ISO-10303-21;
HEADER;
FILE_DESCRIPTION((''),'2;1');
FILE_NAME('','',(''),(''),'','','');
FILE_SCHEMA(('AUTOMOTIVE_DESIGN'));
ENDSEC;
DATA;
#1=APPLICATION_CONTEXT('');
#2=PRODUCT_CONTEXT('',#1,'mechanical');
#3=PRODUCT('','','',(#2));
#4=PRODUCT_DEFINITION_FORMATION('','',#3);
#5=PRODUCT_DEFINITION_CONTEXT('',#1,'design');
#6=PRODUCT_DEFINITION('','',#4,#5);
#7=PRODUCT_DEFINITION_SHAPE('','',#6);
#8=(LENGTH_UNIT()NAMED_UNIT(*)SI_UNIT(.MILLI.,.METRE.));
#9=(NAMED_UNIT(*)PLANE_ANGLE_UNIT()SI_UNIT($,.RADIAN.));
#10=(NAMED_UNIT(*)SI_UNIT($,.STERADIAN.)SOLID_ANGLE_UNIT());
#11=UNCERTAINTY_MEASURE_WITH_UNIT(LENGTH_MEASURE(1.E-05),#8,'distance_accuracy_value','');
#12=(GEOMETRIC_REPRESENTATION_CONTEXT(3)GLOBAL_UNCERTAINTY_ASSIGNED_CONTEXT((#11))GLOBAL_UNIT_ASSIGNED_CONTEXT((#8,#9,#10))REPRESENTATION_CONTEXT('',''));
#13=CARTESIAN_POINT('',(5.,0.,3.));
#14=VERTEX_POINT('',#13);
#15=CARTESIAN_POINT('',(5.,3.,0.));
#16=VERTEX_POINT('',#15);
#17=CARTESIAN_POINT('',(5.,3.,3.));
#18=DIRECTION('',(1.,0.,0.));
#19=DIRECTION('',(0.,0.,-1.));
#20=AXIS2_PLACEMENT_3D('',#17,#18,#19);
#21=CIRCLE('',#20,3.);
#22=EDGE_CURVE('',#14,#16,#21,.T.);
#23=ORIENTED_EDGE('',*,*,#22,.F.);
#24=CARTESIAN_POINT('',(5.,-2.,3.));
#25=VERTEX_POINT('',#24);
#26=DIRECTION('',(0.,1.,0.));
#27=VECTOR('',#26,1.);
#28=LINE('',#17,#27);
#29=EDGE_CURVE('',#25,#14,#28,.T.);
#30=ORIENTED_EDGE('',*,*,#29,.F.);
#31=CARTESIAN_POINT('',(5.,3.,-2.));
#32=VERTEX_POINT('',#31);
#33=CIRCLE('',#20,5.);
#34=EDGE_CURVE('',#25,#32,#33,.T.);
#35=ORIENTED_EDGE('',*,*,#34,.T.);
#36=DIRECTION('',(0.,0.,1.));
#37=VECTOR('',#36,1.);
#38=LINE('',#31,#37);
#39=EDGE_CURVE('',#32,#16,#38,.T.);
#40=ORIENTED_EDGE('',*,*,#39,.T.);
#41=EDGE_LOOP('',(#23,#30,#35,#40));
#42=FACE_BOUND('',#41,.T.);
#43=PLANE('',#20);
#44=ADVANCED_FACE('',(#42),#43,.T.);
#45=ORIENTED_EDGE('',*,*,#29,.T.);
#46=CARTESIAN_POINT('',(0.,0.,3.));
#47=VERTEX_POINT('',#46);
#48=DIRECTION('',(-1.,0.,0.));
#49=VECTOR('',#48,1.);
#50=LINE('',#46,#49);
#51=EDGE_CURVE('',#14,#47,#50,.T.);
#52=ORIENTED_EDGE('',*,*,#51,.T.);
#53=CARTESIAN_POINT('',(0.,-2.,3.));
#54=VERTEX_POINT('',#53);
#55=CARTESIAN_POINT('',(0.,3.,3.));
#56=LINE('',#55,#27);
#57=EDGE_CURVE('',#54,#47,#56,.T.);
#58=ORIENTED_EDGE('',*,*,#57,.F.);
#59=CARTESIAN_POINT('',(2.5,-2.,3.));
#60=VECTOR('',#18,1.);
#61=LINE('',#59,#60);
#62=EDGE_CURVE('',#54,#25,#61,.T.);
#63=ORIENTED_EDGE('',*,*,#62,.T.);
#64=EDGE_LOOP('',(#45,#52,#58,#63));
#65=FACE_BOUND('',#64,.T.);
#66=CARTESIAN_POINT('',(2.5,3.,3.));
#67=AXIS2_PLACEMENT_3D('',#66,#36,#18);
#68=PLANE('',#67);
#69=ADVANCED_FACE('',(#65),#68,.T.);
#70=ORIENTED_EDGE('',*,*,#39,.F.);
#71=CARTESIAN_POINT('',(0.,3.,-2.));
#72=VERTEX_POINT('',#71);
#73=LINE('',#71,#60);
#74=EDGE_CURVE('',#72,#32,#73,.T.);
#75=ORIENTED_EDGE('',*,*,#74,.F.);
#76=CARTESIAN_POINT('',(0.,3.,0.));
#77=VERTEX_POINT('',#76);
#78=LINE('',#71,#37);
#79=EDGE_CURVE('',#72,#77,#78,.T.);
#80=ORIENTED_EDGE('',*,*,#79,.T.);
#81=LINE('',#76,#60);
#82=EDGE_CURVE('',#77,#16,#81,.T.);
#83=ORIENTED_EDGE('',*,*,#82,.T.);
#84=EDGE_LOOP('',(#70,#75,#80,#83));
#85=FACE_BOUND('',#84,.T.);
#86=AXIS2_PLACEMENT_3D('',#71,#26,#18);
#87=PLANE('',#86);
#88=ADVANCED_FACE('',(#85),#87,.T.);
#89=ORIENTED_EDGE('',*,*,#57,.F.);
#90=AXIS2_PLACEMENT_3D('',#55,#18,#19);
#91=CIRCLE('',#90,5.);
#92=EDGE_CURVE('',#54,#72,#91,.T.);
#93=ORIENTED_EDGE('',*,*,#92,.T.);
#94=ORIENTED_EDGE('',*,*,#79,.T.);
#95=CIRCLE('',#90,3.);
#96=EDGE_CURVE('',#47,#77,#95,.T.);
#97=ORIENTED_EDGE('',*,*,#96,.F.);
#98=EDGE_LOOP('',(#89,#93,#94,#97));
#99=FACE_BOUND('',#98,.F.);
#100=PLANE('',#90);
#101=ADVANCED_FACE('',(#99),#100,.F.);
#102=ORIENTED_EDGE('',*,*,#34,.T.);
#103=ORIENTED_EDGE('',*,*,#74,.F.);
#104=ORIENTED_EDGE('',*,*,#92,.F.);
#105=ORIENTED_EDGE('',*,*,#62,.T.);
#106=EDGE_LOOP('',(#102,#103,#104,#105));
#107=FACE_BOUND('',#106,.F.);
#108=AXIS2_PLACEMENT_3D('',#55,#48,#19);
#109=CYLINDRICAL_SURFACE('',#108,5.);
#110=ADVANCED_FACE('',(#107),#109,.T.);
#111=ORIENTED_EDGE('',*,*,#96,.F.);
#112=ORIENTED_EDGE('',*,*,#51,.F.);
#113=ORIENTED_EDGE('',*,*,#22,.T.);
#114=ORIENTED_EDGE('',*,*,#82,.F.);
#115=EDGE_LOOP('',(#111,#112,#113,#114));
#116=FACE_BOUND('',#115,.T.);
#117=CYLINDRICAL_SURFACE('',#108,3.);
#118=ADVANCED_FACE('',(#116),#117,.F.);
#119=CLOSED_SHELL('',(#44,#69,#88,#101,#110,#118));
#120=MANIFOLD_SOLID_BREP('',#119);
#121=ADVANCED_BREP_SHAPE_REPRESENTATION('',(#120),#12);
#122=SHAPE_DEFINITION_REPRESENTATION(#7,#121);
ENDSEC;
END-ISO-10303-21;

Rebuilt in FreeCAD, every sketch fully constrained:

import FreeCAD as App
import Part
import Sketcher

V = App.Vector

doc = App.newDocument("Part")
body = doc.addObject("PartDesign::Body", "Body")

sketch1 = doc.addObject("Sketcher::SketchObject", "Sketch")
body.addObject(sketch1)
sketch1.AttachmentSupport = (doc.XY_Plane, [""])
sketch1.MapMode = "FlatFace"
sketch1.AttachmentOffset = App.Placement(V(0, 0, 3), App.Rotation())
sketch1.addGeometry([
    Part.LineSegment(V(0, 8, 0), V(0, -2, 0)),
    Part.LineSegment(V(0, -2, 0), V(5, -2, 0)),
    Part.LineSegment(V(5, -2, 0), V(5, 8, 0)),
    Part.LineSegment(V(5, 8, 0), V(0, 8, 0)),
], False)
sketch1.addConstraint([
    Sketcher.Constraint("Coincident", 0, 2, 1, 1),
    Sketcher.Constraint("Coincident", 1, 2, 2, 1),
    Sketcher.Constraint("Coincident", 2, 2, 3, 1),
    Sketcher.Constraint("Coincident", 3, 2, 0, 1),
    Sketcher.Constraint("Vertical", 0),
    Sketcher.Constraint("Horizontal", 1),
    Sketcher.Constraint("Vertical", 2),
    Sketcher.Constraint("Horizontal", 3),
    Sketcher.Constraint("PointOnObject", 0, 2, -2),
    Sketcher.Constraint("DistanceX", 1, 1, 1, 2, 5.0),
    Sketcher.Constraint("DistanceY", 0, 2, 0, 1, 10.0),
    Sketcher.Constraint("DistanceY", 0, 2, -1, 1, 2.0),
])
pad1 = doc.addObject("PartDesign::Pad", "Pad")
body.addObject(pad1)
pad1.Profile = sketch1
pad1.Length = 5
body2 = doc.addObject("PartDesign::Body", "Body001")

sketch2 = doc.addObject("Sketcher::SketchObject", "Sketch001")
body2.addObject(sketch2)
sketch2.AttachmentSupport = (doc.getObject("XY_Plane001"), [""])
sketch2.MapMode = "FlatFace"
sketch2.AttachmentOffset = App.Placement(V(0, 0, -2), App.Rotation())
sketch2.addGeometry([
    Part.LineSegment(V(0, 8, 0), V(0, 3, 0)),
    Part.LineSegment(V(0, 3, 0), V(5, 3, 0)),
    Part.LineSegment(V(5, 3, 0), V(5, 8, 0)),
    Part.LineSegment(V(5, 8, 0), V(0, 8, 0)),
], False)
sketch2.addConstraint([
    Sketcher.Constraint("Coincident", 0, 2, 1, 1),
    Sketcher.Constraint("Coincident", 1, 2, 2, 1),
    Sketcher.Constraint("Coincident", 2, 2, 3, 1),
    Sketcher.Constraint("Coincident", 3, 2, 0, 1),
    Sketcher.Constraint("Vertical", 0),
    Sketcher.Constraint("Horizontal", 1),
    Sketcher.Constraint("Vertical", 2),
    Sketcher.Constraint("Horizontal", 3),
    Sketcher.Constraint("PointOnObject", 0, 2, -2),
    Sketcher.Constraint("Equal", 3, 0),
    Sketcher.Constraint("DistanceX", 1, 1, 1, 2, 5.0),
    Sketcher.Constraint("DistanceY", -1, 1, 0, 2, 3.0),
])
pad2 = doc.addObject("PartDesign::Pad", "Pad001")
body2.addObject(pad2)
pad2.Profile = sketch2
pad2.Length = 10
body3 = doc.addObject("PartDesign::Body", "Body002")

sketch3 = doc.addObject("Sketcher::SketchObject", "Sketch002")
body3.addObject(sketch3)
sketch3.AttachmentSupport = (doc.getObject("YZ_Plane002"), [""])
sketch3.MapMode = "FlatFace"
sketch3.addGeometry([
    Part.Circle(V(3, 3, 0), V(0, 0, 1), 5),
    Part.Circle(V(3, 3, 0), V(0, 0, 1), 3),
], False)
sketch3.addConstraint([
    Sketcher.Constraint("Coincident", 1, 3, 0, 3),
    Sketcher.Constraint("Diameter", 0, 10.0),
    Sketcher.Constraint("Diameter", 1, 6.0),
    Sketcher.Constraint("DistanceX", -1, 1, 0, 3, 3.0),
    Sketcher.Constraint("DistanceY", -1, 1, 0, 3, 3.0),
])
pad3 = doc.addObject("PartDesign::Pad", "Pad002")
body3.addObject(pad3)
pad3.Profile = sketch3
pad3.Length = 5
doc.recompute()

boolean = doc.addObject("PartDesign::Boolean", "Boolean")
body3.addObject(boolean)
boolean.Type = "Cut"
boolean.addObjects([body2])
doc.recompute()

boolean2 = doc.addObject("PartDesign::Boolean", "Boolean001")
body3.addObject(boolean2)
boolean2.Type = "Cut"
boolean2.addObjects([body])

doc.recompute()
